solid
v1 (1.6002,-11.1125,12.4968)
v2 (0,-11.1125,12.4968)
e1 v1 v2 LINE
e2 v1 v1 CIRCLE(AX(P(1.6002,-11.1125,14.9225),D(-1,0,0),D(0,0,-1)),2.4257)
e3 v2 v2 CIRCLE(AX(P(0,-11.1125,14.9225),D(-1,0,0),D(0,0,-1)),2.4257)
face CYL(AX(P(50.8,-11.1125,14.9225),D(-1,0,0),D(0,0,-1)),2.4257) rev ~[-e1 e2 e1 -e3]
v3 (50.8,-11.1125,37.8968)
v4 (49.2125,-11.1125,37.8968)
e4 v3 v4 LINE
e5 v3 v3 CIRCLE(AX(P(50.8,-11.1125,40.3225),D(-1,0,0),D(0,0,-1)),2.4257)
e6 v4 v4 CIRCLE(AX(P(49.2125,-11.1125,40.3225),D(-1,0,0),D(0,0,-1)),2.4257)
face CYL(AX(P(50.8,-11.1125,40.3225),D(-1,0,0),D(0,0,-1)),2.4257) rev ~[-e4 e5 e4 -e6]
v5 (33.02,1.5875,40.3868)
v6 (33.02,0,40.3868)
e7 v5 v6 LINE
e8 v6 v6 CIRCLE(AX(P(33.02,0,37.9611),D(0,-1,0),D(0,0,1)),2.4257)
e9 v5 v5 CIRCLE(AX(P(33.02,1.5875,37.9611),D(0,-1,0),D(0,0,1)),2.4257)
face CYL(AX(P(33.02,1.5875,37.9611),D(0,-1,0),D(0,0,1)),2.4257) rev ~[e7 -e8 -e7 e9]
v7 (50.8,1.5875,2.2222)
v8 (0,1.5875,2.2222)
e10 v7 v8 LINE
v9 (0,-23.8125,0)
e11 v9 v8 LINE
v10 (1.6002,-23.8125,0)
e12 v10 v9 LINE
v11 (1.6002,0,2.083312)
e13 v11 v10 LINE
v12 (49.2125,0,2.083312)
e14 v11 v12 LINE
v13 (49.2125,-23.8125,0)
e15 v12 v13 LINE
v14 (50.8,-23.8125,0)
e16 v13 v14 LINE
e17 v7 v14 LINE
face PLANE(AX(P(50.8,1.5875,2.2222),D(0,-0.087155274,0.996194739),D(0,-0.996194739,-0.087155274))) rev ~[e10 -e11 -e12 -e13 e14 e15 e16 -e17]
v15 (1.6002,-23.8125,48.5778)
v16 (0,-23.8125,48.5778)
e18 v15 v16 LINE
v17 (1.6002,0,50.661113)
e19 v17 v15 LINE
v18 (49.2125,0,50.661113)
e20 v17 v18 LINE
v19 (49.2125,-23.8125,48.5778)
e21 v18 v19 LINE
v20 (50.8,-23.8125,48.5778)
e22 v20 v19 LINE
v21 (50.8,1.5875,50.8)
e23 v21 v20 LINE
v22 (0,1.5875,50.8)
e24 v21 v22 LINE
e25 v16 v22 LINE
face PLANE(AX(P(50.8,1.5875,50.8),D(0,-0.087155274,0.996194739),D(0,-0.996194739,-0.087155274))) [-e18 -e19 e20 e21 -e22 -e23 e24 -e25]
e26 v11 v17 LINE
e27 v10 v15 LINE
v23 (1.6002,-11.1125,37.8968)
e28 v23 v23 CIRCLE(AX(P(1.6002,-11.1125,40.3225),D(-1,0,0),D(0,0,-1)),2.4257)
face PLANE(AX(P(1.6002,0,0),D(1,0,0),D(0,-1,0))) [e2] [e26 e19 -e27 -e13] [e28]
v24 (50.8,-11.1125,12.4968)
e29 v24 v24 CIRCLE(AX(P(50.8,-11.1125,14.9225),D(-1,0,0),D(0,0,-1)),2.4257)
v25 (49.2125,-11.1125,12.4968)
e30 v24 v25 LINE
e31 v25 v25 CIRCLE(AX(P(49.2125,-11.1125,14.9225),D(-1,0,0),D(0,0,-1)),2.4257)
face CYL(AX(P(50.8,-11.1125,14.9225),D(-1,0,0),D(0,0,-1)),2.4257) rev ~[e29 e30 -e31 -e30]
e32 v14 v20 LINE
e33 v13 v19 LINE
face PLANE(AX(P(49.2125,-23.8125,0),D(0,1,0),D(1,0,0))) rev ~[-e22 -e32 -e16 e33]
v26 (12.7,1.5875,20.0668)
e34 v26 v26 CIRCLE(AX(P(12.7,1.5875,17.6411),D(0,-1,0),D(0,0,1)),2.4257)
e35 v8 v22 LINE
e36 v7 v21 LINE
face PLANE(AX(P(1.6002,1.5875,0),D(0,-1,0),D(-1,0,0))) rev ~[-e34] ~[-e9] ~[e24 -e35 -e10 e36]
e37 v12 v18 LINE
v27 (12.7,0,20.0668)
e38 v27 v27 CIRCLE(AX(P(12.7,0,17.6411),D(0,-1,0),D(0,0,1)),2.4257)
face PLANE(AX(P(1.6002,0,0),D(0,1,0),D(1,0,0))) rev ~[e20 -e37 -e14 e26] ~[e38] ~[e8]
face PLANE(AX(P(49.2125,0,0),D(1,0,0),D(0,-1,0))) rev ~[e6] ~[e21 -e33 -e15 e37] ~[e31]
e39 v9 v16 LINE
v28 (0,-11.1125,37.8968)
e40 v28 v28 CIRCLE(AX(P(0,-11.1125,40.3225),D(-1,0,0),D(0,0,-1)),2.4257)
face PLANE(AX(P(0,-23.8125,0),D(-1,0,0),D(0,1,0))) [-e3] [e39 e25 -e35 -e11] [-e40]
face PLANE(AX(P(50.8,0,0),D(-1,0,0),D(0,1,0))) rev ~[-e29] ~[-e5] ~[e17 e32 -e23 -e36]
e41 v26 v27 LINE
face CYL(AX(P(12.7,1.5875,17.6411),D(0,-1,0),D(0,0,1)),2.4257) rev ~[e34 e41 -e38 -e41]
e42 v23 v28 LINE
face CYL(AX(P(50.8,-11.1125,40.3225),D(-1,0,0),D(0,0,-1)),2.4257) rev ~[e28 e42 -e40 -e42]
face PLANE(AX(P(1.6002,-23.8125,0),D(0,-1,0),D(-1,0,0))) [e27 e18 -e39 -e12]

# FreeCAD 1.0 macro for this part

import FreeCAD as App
import Part
import Sketcher
Q = App.Units.Quantity


def add_polygon(sketch, points):
    """Adds a closed chain of lines whose ends are joined by coincident constraints."""
    first, n = sketch.GeometryCount, len(points)
    for a, b in zip(points, points[1:] + points[:1]):
        sketch.addGeometry(Part.LineSegment(App.Vector(*a, 0), App.Vector(*b, 0)), False)
    for i in range(n):
        sketch.addConstraint(Sketcher.Constraint("Coincident", first + i, 2, first + (i + 1) % n, 1))

doc = App.newDocument("Part")
params = doc.addObject("Spreadsheet::Sheet", "Params")
for row, (alias, value) in enumerate([
    ("sketch1_width", "2 in"),
    ("sketch1_height", "1 in"),
    ("sketch1_width2", "0.0625 in"),
    ("sketch1_width3", "0.063 in"),
    ("pad1_length", "2 in"),
    ("sketch2_width", "1 in"),
    ("pocket1_length", "9 in"),
    ("sketch3_diameter", "0.191 in"),
    ("hole_diameter", "0.191 in"),
    ("sketch4_width", "1 in"),
    ("pocket2_length", "9 in"),
    ("sketch5_diameter", "0.191 in"),
    ("hole2_diameter", "0.191 in"),
], start=1):
    params.set(f"A{row}", alias)
    params.set(f"B{row}", "=" + value)
    params.setAlias(f"B{row}", alias)

body = doc.addObject("PartDesign::Body", "Body")

# Sketch on XY plane
sketch1 = body.newObject("Sketcher::SketchObject", "Sketch")
sketch1.AttachmentSupport = (doc.getObject("XY_Plane"), [""])
sketch1.MapMode = "FlatFace"
add_polygon(sketch1, [(1.6, -23.8), (1.6, 0), (49.2, 0), (49.2, -23.8), (50.8, -23.8), (50.8, 1.6), (0, 1.6), (0, -23.8)])  # lines 0-7
sketch1.addConstraint([
    Sketcher.Constraint("Vertical", 0),
    Sketcher.Constraint("Horizontal", 1),
    Sketcher.Constraint("Vertical", 2),
    Sketcher.Constraint("Horizontal", 3),
    Sketcher.Constraint("Vertical", 4),
    Sketcher.Constraint("Horizontal", 5),
    Sketcher.Constraint("Vertical", 6),
    Sketcher.Constraint("Horizontal", 7),
    Sketcher.Constraint("PointOnObject", 0, 2, -1),
    Sketcher.Constraint("PointOnObject", 5, 2, -2),
    Sketcher.Constraint("Horizontal", 3, 2, 6, 2),
    Sketcher.Constraint("DistanceX", 5, 2, 5, 1, Q("2 in")),
    Sketcher.Constraint("DistanceY", 4, 1, 4, 2, Q("1 in")),
    Sketcher.Constraint("DistanceX", 3, 1, 3, 2, Q("0.0625 in")),
    Sketcher.Constraint("DistanceX", 7, 1, 7, 2, Q("0.063 in")),
    Sketcher.Constraint("DistanceY", -1, 1, 4, 2, Q("0.0625 in")),
])
sketch1.setExpression("Constraints[19]", "Params.sketch1_width")
sketch1.setExpression("Constraints[20]", "Params.sketch1_height")
sketch1.setExpression("Constraints[21]", "Params.sketch1_width2")
sketch1.setExpression("Constraints[22]", "Params.sketch1_width3")
pad1 = body.newObject("PartDesign::Pad", "Pad")
pad1.Profile = sketch1
pad1.setExpression("Length", "Params.pad1_length")

# Sketch on YZ plane
sketch2 = body.newObject("Sketcher::SketchObject", "Sketch001")
sketch2.AttachmentSupport = (doc.getObject("YZ_Plane"), [""])
sketch2.MapMode = "FlatFace"
sketch2.AttachmentOffset = App.Placement(App.Vector(0, 0, 2 * 25.4), App.Rotation())
add_polygon(sketch2, [(1.6, 50.8), (-23.8, 50.8), (-23.8, 48.6)])  # lines 0-2
sketch2.addConstraint([
    Sketcher.Constraint("Horizontal", 0),
    Sketcher.Constraint("Vertical", 1),
    Sketcher.Constraint("DistanceX", 0, 2, 0, 1, Q("1 in")),
    Sketcher.Constraint("DistanceY", -1, 1, 0, 2, Q("2 in")),
    Sketcher.Constraint("Angle", 2, Q("5 deg")),
    Sketcher.Constraint("DistanceX", 0, 2, -1, 1, Q("0.9375 in")),
])
sketch2.setExpression("Constraints[5]", "Params.sketch2_width")
pocket1 = body.newObject("PartDesign::Pocket", "Pocket")
pocket1.Profile = sketch2
pocket1.setExpression("Length", "Params.pocket1_length")

# Sketch on YZ plane
sketch3 = body.newObject("Sketcher::SketchObject", "Sketch002")
sketch3.AttachmentSupport = (doc.getObject("YZ_Plane"), [""])
sketch3.MapMode = "FlatFace"
sketch3.AttachmentOffset = App.Placement(App.Vector(0, 0, 2 * 25.4), App.Rotation())
sketch3.addGeometry([
    Part.Circle(App.Vector(-11.1, 40.3, 0), App.Vector(0, 0, 1), 2.4),
    Part.Circle(App.Vector(-11.1, 14.9, 0), App.Vector(0, 0, 1), 2.4),
], False)
sketch3.addConstraint([
    Sketcher.Constraint("Equal", 0, 1),
    Sketcher.Constraint("Vertical", 0, 3, 1, 3),
    Sketcher.Constraint("Diameter", 0, Q("0.191 in")),
    Sketcher.Constraint("DistanceY", 1, 3, 0, 3, Q("1 in")),
    Sketcher.Constraint("DistanceX", 0, 3, -1, 1, Q("0.4375 in")),
    Sketcher.Constraint("DistanceY", -1, 1, 0, 3, Q("1.5875 in")),
])
sketch3.setExpression("Constraints[2]", "Params.sketch3_diameter")
doc.recompute()
hole = body.newObject("PartDesign::Hole", "Hole")
hole.Profile = sketch3
hole.ThreadType = "None"
hole.setExpression("Diameter", "Params.hole_diameter")
hole.DepthType = "ThroughAll"

# Sketch on YZ plane
sketch4 = body.newObject("Sketcher::SketchObject", "Sketch003")
sketch4.AttachmentSupport = (doc.getObject("YZ_Plane"), [""])
sketch4.MapMode = "FlatFace"
sketch4.AttachmentOffset = App.Placement(App.Vector(0, 0, 2 * 25.4), App.Rotation())
add_polygon(sketch4, [(1.6, 2.2), (-23.8, 0), (1.6, 0)])  # lines 0-2
sketch4.addConstraint([
    Sketcher.Constraint("Horizontal", 1),
    Sketcher.Constraint("Vertical", 2),
    Sketcher.Constraint("PointOnObject", 0, 2, -1),
    Sketcher.Constraint("DistanceX", 1, 1, 1, 2, Q("1 in")),
    Sketcher.Constraint("Angle", 0, Q("-175 deg")),
    Sketcher.Constraint("DistanceX", 0, 2, -1, 1, Q("0.9375 in")),
])
sketch4.setExpression("Constraints[6]", "Params.sketch4_width")
pocket2 = body.newObject("PartDesign::Pocket", "Pocket001")
pocket2.Profile = sketch4
pocket2.setExpression("Length", "Params.pocket2_length")

# Sketch on XZ plane
sketch5 = body.newObject("Sketcher::SketchObject", "Sketch004")
sketch5.AttachmentSupport = (doc.getObject("XZ_Plane"), [""])
sketch5.MapMode = "FlatFace"
sketch5.AttachmentOffset = App.Placement(App.Vector(0, 0, -0.0625 * 25.4), App.Rotation())
sketch5.addGeometry([
    Part.Circle(App.Vector(12.7, 17.6, 0), App.Vector(0, 0, 1), 2.4),
    Part.Circle(App.Vector(33, 38, 0), App.Vector(0, 0, 1), 2.4),
], False)
sketch5.addConstraint([
    Sketcher.Constraint("Equal", 0, 1),
    Sketcher.Constraint("Diameter", 0, Q("0.191 in")),
    Sketcher.Constraint("DistanceX", -1, 1, 0, 3, Q("0.5 in")),
    Sketcher.Constraint("DistanceX", -1, 1, 1, 3, Q("1.3 in")),
    Sketcher.Constraint("DistanceY", 0, 3, 1, 3, Q("0.8 in")),
    Sketcher.Constraint("DistanceY", -1, 1, 0, 3, Q("17.641 mm")),
])
sketch5.setExpression("Constraints[1]", "Params.sketch5_diameter")
doc.recompute()
hole2 = body.newObject("PartDesign::Hole", "Hole001")
hole2.Profile = sketch5
hole2.ThreadType = "None"
hole2.setExpression("Diameter", "Params.hole2_diameter")
hole2.DepthType = "ThroughAll"
hole2.Reversed = True

doc.recompute()
